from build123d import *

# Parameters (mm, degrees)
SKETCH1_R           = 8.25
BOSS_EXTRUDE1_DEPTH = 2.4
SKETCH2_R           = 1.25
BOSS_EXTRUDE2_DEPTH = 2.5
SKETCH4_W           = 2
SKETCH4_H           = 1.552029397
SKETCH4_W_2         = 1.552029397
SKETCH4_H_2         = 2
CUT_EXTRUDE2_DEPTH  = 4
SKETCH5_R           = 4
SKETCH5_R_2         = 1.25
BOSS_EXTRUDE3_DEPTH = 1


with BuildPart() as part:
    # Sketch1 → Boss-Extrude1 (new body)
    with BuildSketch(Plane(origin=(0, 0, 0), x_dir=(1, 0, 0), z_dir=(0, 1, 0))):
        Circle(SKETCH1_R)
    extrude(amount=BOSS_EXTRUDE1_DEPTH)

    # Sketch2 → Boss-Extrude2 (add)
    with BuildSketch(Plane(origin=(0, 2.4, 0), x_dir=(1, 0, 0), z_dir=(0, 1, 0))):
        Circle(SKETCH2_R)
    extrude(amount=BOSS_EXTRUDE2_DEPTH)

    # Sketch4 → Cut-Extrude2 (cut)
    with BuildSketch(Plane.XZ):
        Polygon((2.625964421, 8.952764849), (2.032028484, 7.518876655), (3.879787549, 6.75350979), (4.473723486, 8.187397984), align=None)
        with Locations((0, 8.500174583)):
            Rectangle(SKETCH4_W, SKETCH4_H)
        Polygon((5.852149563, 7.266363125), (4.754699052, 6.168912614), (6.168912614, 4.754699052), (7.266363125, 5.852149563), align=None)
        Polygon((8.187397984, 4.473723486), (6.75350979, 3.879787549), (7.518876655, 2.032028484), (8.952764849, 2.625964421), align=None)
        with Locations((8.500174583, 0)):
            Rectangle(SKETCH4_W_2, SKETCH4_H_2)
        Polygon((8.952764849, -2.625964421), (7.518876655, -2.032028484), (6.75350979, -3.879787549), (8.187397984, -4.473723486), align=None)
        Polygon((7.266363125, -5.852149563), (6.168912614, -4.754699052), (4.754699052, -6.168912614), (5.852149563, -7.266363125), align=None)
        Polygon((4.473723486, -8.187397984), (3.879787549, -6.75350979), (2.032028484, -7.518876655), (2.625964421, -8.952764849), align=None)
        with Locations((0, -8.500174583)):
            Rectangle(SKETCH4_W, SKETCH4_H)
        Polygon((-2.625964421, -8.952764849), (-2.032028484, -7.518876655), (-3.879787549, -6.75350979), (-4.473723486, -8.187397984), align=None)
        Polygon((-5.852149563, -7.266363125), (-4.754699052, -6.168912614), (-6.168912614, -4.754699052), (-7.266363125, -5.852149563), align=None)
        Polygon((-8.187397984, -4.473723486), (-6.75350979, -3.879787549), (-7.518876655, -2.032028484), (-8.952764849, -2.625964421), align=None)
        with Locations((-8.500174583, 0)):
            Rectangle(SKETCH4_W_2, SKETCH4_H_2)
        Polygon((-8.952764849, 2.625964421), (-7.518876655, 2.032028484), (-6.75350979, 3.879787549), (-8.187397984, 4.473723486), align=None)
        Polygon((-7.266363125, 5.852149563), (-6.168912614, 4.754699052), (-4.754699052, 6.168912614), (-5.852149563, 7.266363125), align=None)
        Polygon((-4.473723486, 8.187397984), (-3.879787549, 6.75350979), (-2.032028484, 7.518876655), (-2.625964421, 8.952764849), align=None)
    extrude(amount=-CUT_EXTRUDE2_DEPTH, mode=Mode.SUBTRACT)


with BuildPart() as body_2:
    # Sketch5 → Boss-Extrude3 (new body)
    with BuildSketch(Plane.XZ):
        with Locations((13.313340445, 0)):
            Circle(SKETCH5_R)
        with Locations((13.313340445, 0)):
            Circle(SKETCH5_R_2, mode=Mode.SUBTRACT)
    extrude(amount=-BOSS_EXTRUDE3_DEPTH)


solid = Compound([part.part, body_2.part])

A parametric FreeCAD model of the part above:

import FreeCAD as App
import Part
import Sketcher
from FreeCAD import Vector
Q = App.Units.Quantity


def add_polygon(sketch, points):
    """Adds a closed chain of lines whose ends are joined by coincident constraints."""
    first, n = sketch.GeometryCount, len(points)
    for a, b in zip(points, points[1:] + points[:1]):
        sketch.addGeometry(Part.LineSegment(App.Vector(*a, 0), App.Vector(*b, 0)), False)
    for i in range(n):
        sketch.addConstraint(Sketcher.Constraint("Coincident", first + i, 2, first + (i + 1) % n, 1))

doc = App.newDocument("Part")
body = doc.addObject("PartDesign::Body", "Body")

# Sketch on XZ plane
sketch1 = body.newObject("Sketcher::SketchObject", "Sketch")
sketch1.AttachmentSupport = (doc.getObject("XZ_Plane"), [""])
sketch1.MapMode = "FlatFace"
sketch1.addGeometry(Part.Circle(Vector(0, 0, 0), Vector(0, 0, 1), 8.25), False)
sketch1.addConstraint([
    Sketcher.Constraint("Coincident", 0, 3, -1, 1),
    Sketcher.Constraint("Diameter", 0, 16.5),
])
pad1 = body.newObject("PartDesign::Pad", "Pad")
pad1.Profile = sketch1
pad1.Length = 2.4
pad1.Reversed = True

# Sketch on XZ plane
sketch2 = body.newObject("Sketcher::SketchObject", "Sketch001")
sketch2.AttachmentSupport = (doc.getObject("XZ_Plane"), [""])
sketch2.MapMode = "FlatFace"
sketch2.AttachmentOffset = App.Placement(Vector(0, 0, -2.4), App.Rotation())
sketch2.addGeometry(Part.Circle(Vector(0, 0, 0), Vector(0, 0, 1), 1.25), False)
sketch2.addConstraint([
    Sketcher.Constraint("Coincident", 0, 3, -1, 1),
    Sketcher.Constraint("Diameter", 0, 2.5),
])
pad2 = body.newObject("PartDesign::Pad", "Pad001")
pad2.Profile = sketch2
pad2.Length = 2.5
pad2.Reversed = True

# Sketch on XZ plane
sketch3 = body.newObject("Sketcher::SketchObject", "Sketch002")
sketch3.AttachmentSupport = (doc.getObject("XZ_Plane"), [""])
sketch3.MapMode = "FlatFace"
add_polygon(sketch3, [(2.625964, 8.952765), (2.032028, 7.518877), (3.879788, 6.75351), (4.473723, 8.187398)])  # lines 0-3
add_polygon(sketch3, [(-1, 9.276189), (-1, 7.72416), (1, 7.72416), (1, 9.276189)])  # lines 4-7
add_polygon(sketch3, [(5.85215, 7.266363), (4.754699, 6.168913), (6.168913, 4.754699), (7.266363, 5.85215)])  # lines 8-11
add_polygon(sketch3, [(8.187398, 4.473723), (6.75351, 3.879788), (7.518877, 2.032028), (8.952765, 2.625964)])  # lines 12-15
add_polygon(sketch3, [(7.72416, 1), (7.72416, -1), (9.276189, -1), (9.276189, 1)])  # lines 16-19
add_polygon(sketch3, [(8.952765, -2.625964), (7.518877, -2.032028), (6.75351, -3.879788), (8.187398, -4.473723)])  # lines 20-23
add_polygon(sketch3, [(7.266363, -5.85215), (6.168913, -4.754699), (4.754699, -6.168913), (5.85215, -7.266363)])  # lines 24-27
add_polygon(sketch3, [(4.473723, -8.187398), (3.879788, -6.75351), (2.032028, -7.518877), (2.625964, -8.952765)])  # lines 28-31
add_polygon(sketch3, [(-1, -7.72416), (-1, -9.276189), (1, -9.276189), (1, -7.72416)])  # lines 32-35
add_polygon(sketch3, [(-2.625964, -8.952765), (-2.032028, -7.518877), (-3.879788, -6.75351), (-4.473723, -8.187398)])  # lines 36-39
add_polygon(sketch3, [(-5.85215, -7.266363), (-4.754699, -6.168913), (-6.168913, -4.754699), (-7.266363, -5.85215)])  # lines 40-43
add_polygon(sketch3, [(-8.187398, -4.473723), (-6.75351, -3.879788), (-7.518877, -2.032028), (-8.952765, -2.625964)])  # lines 44-47
add_polygon(sketch3, [(-9.276189, 1), (-9.276189, -1), (-7.72416, -1), (-7.72416, 1)])  # lines 48-51
add_polygon(sketch3, [(-8.952765, 2.625964), (-7.518877, 2.032028), (-6.75351, 3.879788), (-8.187398, 4.473723)])  # lines 52-55
add_polygon(sketch3, [(-7.266363, 5.85215), (-6.168913, 4.754699), (-4.754699, 6.168913), (-5.85215, 7.266363)])  # lines 56-59
add_polygon(sketch3, [(-4.473723, 8.187398), (-3.879788, 6.75351), (-2.032028, 7.518877), (-2.625964, 8.952765)])  # lines 60-63
sketch3.addConstraint([
    Sketcher.Constraint("Vertical", 4),
    Sketcher.Constraint("Horizontal", 5),
    Sketcher.Constraint("Vertical", 6),
    Sketcher.Constraint("Horizontal", 7),
    Sketcher.Constraint("Vertical", 16),
    Sketcher.Constraint("Horizontal", 17),
    Sketcher.Constraint("Vertical", 18),
    Sketcher.Constraint("Horizontal", 19),
    Sketcher.Constraint("Vertical", 32),
    Sketcher.Constraint("Horizontal", 33),
    Sketcher.Constraint("Vertical", 34),
    Sketcher.Constraint("Horizontal", 35),
    Sketcher.Constraint("Vertical", 48),
    Sketcher.Constraint("Horizontal", 49),
    Sketcher.Constraint("Vertical", 50),
    Sketcher.Constraint("Horizontal", 51),
    Sketcher.Constraint("Symmetric", 6, 2, 32, 2, -1, 1),
    Sketcher.Constraint("Symmetric", 4, 2, 34, 2, -1, 1),
    Sketcher.Constraint("Symmetric", 0, 2, 36, 2, -1, 1),
    Sketcher.Constraint("Symmetric", 1, 2, 37, 2, -1, 1),
    Sketcher.Constraint("Symmetric", 2, 2, 38, 2, -1, 1),
    Sketcher.Constraint("Symmetric", 3, 2, 39, 2, -1, 1),
    Sketcher.Constraint("Symmetric", 8, 2, 40, 2, -1, 1),
    Sketcher.Constraint("Symmetric", 9, 2, 41, 2, -1, 1),
    Sketcher.Constraint("Symmetric", 10, 2, 42, 2, -1, 1),
    Sketcher.Constraint("Symmetric", 11, 2, 43, 2, -1, 1),
    Sketcher.Constraint("Symmetric", 12, 2, 44, 2, -1, 1),
    Sketcher.Constraint("Symmetric", 13, 2, 45, 2, -1, 1),
    Sketcher.Constraint("Symmetric", 14, 2, 46, 2, -1, 1),
    Sketcher.Constraint("Symmetric", 15, 2, 47, 2, -1, 1),
    Sketcher.Constraint("Symmetric", 18, 2, 48, 2, -1, 1),
    Sketcher.Constraint("Symmetric", 16, 2, 50, 2, -1, 1),
    Sketcher.Constraint("Symmetric", 20, 2, 52, 2, -1, 1),
    Sketcher.Constraint("Symmetric", 21, 2, 53, 2, -1, 1),
    Sketcher.Constraint("Symmetric", 22, 2, 54, 2, -1, 1),
    Sketcher.Constraint("Symmetric", 23, 2, 55, 2, -1, 1),
    Sketcher.Constraint("Symmetric", 24, 2, 56, 2, -1, 1),
    Sketcher.Constraint("Symmetric", 25, 2, 57, 2, -1, 1),
    Sketcher.Constraint("Symmetric", 26, 2, 58, 2, -1, 1),
    Sketcher.Constraint("Symmetric", 27, 2, 59, 2, -1, 1),
    Sketcher.Constraint("Symmetric", 28, 2, 60, 2, -1, 1),
    Sketcher.Constraint("Symmetric", 29, 2, 61, 2, -1, 1),
    Sketcher.Constraint("Symmetric", 30, 2, 62, 2, -1, 1),
    Sketcher.Constraint("Symmetric", 31, 2, 63, 2, -1, 1),
    Sketcher.Constraint("Symmetric", 29, 2, 36, 2, -2),
    Sketcher.Constraint("Symmetric", 28, 2, 37, 2, -2),
    Sketcher.Constraint("Symmetric", 31, 2, 38, 2, -2),
    Sketcher.Constraint("Symmetric", 30, 2, 39, 2, -2),
    Sketcher.Constraint("Symmetric", 25, 2, 40, 2, -2),
    Sketcher.Constraint("Symmetric", 24, 2, 41, 2, -2),
    Sketcher.Constraint("Symmetric", 27, 2, 42, 2, -2),
    Sketcher.Constraint("Symmetric", 26, 2, 43, 2, -2),
    Sketcher.Constraint("Symmetric", 21, 2, 44, 2, -2),
    Sketcher.Constraint("Symmetric", 20, 2, 45, 2, -2),
    Sketcher.Constraint("Symmetric", 23, 2, 46, 2, -2),
    Sketcher.Constraint("Symmetric", 22, 2, 47, 2, -2),
    Sketcher.Constraint("Perpendicular", 0, 1),
    Sketcher.Constraint("Perpendicular", 1, 2),
    Sketcher.Constraint("Perpendicular", 2, 3),
    Sketcher.Constraint("Perpendicular", 8, 9),
    Sketcher.Constraint("Perpendicular", 9, 10),
    Sketcher.Constraint("Perpendicular", 10, 11),
    Sketcher.Constraint("Perpendicular", 12, 13),
    Sketcher.Constraint("Perpendicular", 13, 14),
    Sketcher.Constraint("Perpendicular", 14, 15),
    Sketcher.Constraint("Parallel", 3, 20),
    Sketcher.Constraint("Parallel", 11, 24),
    Sketcher.Constraint("Horizontal", 17, 2, 48, 2),
    Sketcher.Constraint("Vertical", 7, 2, 32, 2),
    Sketcher.Constraint("Equal", 51, 4),
    Sketcher.Constraint("Equal", 35, 16),
    Sketcher.Constraint("Equal", 2, 8),
    Sketcher.Constraint("Equal", 3, 9),
    Sketcher.Constraint("Equal", 10, 12),
    Sketcher.Constraint("Equal", 11, 13),
    Sketcher.Constraint("DistanceX", 5, 1, 5, 2, 2.0),
    Sketcher.Constraint("Distance", 1, 2.0),
    Sketcher.Constraint("Angle", 0, Q("-112.5 deg")),
    Sketcher.Constraint("DistanceX", 17, 1, 17, 2, 1.552029),
    Sketcher.Constraint("DistanceX", -1, 1, 8, 2, 4.754699),
    Sketcher.Constraint("DistanceY", -1, 1, 9, 2, 4.754699),
    Sketcher.Constraint("Distance", 0, 1.552029),
    Sketcher.Constraint("DistanceX", -1, 1, 0, 2, 2.032028),
    Sketcher.Constraint("DistanceY", -1, 1, 1, 2, 6.75351),
    Sketcher.Constraint("DistanceY", -1, 1, 4, 2, 7.72416),
    Sketcher.Constraint("DistanceX", -1, 1, 12, 2, 6.75351),
    Sketcher.Constraint("DistanceY", -1, 1, 13, 2, 2.032028),
    Sketcher.Constraint("DistanceX", -1, 1, 16, 2, 7.72416),
])
pocket1 = body.newObject("PartDesign::Pocket", "Pocket")
pocket1.Profile = sketch3
pocket1.Length = 4
body2 = doc.addObject("PartDesign::Body", "Body001")

# Sketch on XZ plane
sketch4 = body2.newObject("Sketcher::SketchObject", "Sketch003")
sketch4.AttachmentSupport = (doc.getObject("XZ_Plane001"), [""])
sketch4.MapMode = "FlatFace"
sketch4.addGeometry([
    Part.Circle(Vector(13.31334, 0, 0), Vector(0, 0, 1), 4),
    Part.Circle(Vector(13.31334, 0, 0), Vector(0, 0, 1), 1.25),
], False)
sketch4.addConstraint([
    Sketcher.Constraint("Coincident", 1, 3, 0, 3),
    Sketcher.Constraint("PointOnObject", 0, 3, -1),
    Sketcher.Constraint("Diameter", 0, 8.0),
    Sketcher.Constraint("Diameter", 1, 2.5),
    Sketcher.Constraint("DistanceX", -1, 1, 0, 3, 13.31334),
])
pad3 = body2.newObject("PartDesign::Pad", "Pad002")
pad3.Profile = sketch4
pad3.Length = 1
pad3.Reversed = True

doc.recompute()
